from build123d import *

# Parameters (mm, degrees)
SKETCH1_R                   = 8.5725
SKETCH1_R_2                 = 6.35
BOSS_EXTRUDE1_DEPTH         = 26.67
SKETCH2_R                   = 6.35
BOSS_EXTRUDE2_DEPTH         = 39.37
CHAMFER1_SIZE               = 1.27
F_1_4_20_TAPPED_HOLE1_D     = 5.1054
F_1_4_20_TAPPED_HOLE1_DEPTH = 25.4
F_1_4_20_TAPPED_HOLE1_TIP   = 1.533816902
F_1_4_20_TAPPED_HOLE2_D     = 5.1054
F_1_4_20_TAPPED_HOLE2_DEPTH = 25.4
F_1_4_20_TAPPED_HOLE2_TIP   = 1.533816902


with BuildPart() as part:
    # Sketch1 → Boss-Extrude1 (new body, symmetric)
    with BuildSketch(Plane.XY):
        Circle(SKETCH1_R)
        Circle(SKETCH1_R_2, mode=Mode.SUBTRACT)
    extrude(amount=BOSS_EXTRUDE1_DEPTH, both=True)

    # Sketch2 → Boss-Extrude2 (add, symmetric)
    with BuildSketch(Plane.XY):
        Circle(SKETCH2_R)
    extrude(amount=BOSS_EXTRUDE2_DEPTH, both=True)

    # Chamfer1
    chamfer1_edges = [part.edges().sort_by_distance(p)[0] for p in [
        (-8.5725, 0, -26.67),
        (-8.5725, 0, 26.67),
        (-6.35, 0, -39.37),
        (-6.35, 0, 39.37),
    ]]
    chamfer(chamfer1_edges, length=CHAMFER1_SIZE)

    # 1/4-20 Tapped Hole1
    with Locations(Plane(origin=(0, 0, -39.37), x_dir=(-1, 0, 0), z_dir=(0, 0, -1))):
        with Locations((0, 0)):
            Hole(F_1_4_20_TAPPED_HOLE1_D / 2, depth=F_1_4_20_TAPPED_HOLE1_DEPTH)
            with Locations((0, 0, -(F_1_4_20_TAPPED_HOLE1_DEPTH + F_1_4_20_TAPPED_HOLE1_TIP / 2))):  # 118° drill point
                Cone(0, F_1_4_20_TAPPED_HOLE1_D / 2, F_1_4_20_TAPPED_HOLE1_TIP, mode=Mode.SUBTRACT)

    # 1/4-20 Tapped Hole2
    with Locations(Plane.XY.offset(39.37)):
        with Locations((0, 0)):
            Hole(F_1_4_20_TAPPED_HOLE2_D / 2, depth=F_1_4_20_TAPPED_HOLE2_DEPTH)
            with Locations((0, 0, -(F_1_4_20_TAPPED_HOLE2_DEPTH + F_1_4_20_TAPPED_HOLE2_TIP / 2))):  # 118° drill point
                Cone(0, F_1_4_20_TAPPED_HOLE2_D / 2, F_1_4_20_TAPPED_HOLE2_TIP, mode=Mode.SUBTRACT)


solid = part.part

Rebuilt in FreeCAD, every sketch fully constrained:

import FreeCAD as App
import Part
import Sketcher
Q = App.Units.Quantity


def edges_at(feature, points):
    """Names of the edges that pass closest to the given points."""
    edges = feature.Shape.Edges
    near = lambda p: min(range(len(edges)), key=lambda i: edges[i].distToShape(Part.Vertex(*p))[0])
    return sorted({f"Edge{near(p) + 1}" for p in points})

doc = App.newDocument("Part")
body = doc.addObject("PartDesign::Body", "Body")

sketch1 = body.newObject("Sketcher::SketchObject", "Sketch")
sketch1.AttachmentSupport = (doc.getObject("XY_Plane"), [""])
sketch1.MapMode = "FlatFace"
sketch1.addGeometry([
    Part.Circle(App.Vector(0, 0, 0), App.Vector(0, 0, 1), 9),
    Part.Circle(App.Vector(0, 0, 0), App.Vector(0, 0, 1), 6),
], False)
sketch1.addConstraint([
    Sketcher.Constraint("Coincident", 0, 3, -1, 1),
    Sketcher.Constraint("Coincident", 1, 3, -1, 1),
    Sketcher.Constraint("Diameter", 1, Q("0.5 in")),
    Sketcher.Constraint("Diameter", 0, Q("0.675 in")),
])
pad1 = body.newObject("PartDesign::Pad", "Pad")
pad1.Profile = sketch1
pad1.Length = Q("2.1 in")
pad1.Midplane = True

sketch2 = body.newObject("Sketcher::SketchObject", "Sketch001")
sketch2.AttachmentSupport = (doc.getObject("XY_Plane"), [""])
sketch2.MapMode = "FlatFace"
sketch2.addGeometry(Part.Circle(App.Vector(0, 0, 0), App.Vector(0, 0, 1), 6), False)
sketch2.addConstraint([
    Sketcher.Constraint("Coincident", 0, 3, -1, 1),
    Sketcher.Constraint("Diameter", 0, Q("0.5 in")),
])
pad2 = body.newObject("PartDesign::Pad", "Pad001")
pad2.Profile = sketch2
pad2.Length = Q("3.1 in")
pad2.Midplane = True
doc.recompute()

chamfer = body.newObject("PartDesign::Chamfer", "Chamfer")
chamfer.Base = (pad2, edges_at(pad2, [
    (-8.572, 0, -26.67),
    (-8.572, 0, 26.67),
    (-6.35, 0, -39.37),
    (-6.35, 0, 39.37),
]))
chamfer.Size = Q("0.05 in")

sketch3 = body.newObject("Sketcher::SketchObject", "Sketch002")
sketch3.AttachmentSupport = (doc.getObject("XY_Plane"), [""])
sketch3.MapMode = "FlatFace"
sketch3.AttachmentOffset = App.Placement(App.Vector(0, 0, -1.55 * 25.4), App.Rotation())
sketch3.addGeometry(Part.Circle(App.Vector(0, 0, 0), App.Vector(0, 0, 1), 2.6), False)
sketch3.addConstraint([
    Sketcher.Constraint("Coincident", 0, 3, -1, 1),
    Sketcher.Constraint("Diameter", 0, Q("0.201 in")),
])
doc.recompute()
hole = body.newObject("PartDesign::Hole", "Hole")
hole.Profile = sketch3
hole.ThreadType = "None"
hole.Diameter = Q("0.201 in")
hole.DepthType = "Dimension"
hole.Depth = Q("1 in")
hole.DrillPoint = "Angled"
hole.DrillPointAngle = 118
hole.Reversed = True

sketch4 = body.newObject("Sketcher::SketchObject", "Sketch003")
sketch4.AttachmentSupport = (doc.getObject("XY_Plane"), [""])
sketch4.MapMode = "FlatFace"
sketch4.AttachmentOffset = App.Placement(App.Vector(0, 0, 1.55 * 25.4), App.Rotation())
sketch4.addGeometry(Part.Circle(App.Vector(0, 0, 0), App.Vector(0, 0, 1), 2.6), False)
sketch4.addConstraint([
    Sketcher.Constraint("Coincident", 0, 3, -1, 1),
    Sketcher.Constraint("Diameter", 0, Q("0.201 in")),
])
doc.recompute()
hole2 = body.newObject("PartDesign::Hole", "Hole001")
hole2.Profile = sketch4
hole2.ThreadType = "None"
hole2.Diameter = Q("0.201 in")
hole2.DepthType = "Dimension"
hole2.Depth = Q("1 in")
hole2.DrillPoint = "Angled"
hole2.DrillPointAngle = 118

doc.recompute()
